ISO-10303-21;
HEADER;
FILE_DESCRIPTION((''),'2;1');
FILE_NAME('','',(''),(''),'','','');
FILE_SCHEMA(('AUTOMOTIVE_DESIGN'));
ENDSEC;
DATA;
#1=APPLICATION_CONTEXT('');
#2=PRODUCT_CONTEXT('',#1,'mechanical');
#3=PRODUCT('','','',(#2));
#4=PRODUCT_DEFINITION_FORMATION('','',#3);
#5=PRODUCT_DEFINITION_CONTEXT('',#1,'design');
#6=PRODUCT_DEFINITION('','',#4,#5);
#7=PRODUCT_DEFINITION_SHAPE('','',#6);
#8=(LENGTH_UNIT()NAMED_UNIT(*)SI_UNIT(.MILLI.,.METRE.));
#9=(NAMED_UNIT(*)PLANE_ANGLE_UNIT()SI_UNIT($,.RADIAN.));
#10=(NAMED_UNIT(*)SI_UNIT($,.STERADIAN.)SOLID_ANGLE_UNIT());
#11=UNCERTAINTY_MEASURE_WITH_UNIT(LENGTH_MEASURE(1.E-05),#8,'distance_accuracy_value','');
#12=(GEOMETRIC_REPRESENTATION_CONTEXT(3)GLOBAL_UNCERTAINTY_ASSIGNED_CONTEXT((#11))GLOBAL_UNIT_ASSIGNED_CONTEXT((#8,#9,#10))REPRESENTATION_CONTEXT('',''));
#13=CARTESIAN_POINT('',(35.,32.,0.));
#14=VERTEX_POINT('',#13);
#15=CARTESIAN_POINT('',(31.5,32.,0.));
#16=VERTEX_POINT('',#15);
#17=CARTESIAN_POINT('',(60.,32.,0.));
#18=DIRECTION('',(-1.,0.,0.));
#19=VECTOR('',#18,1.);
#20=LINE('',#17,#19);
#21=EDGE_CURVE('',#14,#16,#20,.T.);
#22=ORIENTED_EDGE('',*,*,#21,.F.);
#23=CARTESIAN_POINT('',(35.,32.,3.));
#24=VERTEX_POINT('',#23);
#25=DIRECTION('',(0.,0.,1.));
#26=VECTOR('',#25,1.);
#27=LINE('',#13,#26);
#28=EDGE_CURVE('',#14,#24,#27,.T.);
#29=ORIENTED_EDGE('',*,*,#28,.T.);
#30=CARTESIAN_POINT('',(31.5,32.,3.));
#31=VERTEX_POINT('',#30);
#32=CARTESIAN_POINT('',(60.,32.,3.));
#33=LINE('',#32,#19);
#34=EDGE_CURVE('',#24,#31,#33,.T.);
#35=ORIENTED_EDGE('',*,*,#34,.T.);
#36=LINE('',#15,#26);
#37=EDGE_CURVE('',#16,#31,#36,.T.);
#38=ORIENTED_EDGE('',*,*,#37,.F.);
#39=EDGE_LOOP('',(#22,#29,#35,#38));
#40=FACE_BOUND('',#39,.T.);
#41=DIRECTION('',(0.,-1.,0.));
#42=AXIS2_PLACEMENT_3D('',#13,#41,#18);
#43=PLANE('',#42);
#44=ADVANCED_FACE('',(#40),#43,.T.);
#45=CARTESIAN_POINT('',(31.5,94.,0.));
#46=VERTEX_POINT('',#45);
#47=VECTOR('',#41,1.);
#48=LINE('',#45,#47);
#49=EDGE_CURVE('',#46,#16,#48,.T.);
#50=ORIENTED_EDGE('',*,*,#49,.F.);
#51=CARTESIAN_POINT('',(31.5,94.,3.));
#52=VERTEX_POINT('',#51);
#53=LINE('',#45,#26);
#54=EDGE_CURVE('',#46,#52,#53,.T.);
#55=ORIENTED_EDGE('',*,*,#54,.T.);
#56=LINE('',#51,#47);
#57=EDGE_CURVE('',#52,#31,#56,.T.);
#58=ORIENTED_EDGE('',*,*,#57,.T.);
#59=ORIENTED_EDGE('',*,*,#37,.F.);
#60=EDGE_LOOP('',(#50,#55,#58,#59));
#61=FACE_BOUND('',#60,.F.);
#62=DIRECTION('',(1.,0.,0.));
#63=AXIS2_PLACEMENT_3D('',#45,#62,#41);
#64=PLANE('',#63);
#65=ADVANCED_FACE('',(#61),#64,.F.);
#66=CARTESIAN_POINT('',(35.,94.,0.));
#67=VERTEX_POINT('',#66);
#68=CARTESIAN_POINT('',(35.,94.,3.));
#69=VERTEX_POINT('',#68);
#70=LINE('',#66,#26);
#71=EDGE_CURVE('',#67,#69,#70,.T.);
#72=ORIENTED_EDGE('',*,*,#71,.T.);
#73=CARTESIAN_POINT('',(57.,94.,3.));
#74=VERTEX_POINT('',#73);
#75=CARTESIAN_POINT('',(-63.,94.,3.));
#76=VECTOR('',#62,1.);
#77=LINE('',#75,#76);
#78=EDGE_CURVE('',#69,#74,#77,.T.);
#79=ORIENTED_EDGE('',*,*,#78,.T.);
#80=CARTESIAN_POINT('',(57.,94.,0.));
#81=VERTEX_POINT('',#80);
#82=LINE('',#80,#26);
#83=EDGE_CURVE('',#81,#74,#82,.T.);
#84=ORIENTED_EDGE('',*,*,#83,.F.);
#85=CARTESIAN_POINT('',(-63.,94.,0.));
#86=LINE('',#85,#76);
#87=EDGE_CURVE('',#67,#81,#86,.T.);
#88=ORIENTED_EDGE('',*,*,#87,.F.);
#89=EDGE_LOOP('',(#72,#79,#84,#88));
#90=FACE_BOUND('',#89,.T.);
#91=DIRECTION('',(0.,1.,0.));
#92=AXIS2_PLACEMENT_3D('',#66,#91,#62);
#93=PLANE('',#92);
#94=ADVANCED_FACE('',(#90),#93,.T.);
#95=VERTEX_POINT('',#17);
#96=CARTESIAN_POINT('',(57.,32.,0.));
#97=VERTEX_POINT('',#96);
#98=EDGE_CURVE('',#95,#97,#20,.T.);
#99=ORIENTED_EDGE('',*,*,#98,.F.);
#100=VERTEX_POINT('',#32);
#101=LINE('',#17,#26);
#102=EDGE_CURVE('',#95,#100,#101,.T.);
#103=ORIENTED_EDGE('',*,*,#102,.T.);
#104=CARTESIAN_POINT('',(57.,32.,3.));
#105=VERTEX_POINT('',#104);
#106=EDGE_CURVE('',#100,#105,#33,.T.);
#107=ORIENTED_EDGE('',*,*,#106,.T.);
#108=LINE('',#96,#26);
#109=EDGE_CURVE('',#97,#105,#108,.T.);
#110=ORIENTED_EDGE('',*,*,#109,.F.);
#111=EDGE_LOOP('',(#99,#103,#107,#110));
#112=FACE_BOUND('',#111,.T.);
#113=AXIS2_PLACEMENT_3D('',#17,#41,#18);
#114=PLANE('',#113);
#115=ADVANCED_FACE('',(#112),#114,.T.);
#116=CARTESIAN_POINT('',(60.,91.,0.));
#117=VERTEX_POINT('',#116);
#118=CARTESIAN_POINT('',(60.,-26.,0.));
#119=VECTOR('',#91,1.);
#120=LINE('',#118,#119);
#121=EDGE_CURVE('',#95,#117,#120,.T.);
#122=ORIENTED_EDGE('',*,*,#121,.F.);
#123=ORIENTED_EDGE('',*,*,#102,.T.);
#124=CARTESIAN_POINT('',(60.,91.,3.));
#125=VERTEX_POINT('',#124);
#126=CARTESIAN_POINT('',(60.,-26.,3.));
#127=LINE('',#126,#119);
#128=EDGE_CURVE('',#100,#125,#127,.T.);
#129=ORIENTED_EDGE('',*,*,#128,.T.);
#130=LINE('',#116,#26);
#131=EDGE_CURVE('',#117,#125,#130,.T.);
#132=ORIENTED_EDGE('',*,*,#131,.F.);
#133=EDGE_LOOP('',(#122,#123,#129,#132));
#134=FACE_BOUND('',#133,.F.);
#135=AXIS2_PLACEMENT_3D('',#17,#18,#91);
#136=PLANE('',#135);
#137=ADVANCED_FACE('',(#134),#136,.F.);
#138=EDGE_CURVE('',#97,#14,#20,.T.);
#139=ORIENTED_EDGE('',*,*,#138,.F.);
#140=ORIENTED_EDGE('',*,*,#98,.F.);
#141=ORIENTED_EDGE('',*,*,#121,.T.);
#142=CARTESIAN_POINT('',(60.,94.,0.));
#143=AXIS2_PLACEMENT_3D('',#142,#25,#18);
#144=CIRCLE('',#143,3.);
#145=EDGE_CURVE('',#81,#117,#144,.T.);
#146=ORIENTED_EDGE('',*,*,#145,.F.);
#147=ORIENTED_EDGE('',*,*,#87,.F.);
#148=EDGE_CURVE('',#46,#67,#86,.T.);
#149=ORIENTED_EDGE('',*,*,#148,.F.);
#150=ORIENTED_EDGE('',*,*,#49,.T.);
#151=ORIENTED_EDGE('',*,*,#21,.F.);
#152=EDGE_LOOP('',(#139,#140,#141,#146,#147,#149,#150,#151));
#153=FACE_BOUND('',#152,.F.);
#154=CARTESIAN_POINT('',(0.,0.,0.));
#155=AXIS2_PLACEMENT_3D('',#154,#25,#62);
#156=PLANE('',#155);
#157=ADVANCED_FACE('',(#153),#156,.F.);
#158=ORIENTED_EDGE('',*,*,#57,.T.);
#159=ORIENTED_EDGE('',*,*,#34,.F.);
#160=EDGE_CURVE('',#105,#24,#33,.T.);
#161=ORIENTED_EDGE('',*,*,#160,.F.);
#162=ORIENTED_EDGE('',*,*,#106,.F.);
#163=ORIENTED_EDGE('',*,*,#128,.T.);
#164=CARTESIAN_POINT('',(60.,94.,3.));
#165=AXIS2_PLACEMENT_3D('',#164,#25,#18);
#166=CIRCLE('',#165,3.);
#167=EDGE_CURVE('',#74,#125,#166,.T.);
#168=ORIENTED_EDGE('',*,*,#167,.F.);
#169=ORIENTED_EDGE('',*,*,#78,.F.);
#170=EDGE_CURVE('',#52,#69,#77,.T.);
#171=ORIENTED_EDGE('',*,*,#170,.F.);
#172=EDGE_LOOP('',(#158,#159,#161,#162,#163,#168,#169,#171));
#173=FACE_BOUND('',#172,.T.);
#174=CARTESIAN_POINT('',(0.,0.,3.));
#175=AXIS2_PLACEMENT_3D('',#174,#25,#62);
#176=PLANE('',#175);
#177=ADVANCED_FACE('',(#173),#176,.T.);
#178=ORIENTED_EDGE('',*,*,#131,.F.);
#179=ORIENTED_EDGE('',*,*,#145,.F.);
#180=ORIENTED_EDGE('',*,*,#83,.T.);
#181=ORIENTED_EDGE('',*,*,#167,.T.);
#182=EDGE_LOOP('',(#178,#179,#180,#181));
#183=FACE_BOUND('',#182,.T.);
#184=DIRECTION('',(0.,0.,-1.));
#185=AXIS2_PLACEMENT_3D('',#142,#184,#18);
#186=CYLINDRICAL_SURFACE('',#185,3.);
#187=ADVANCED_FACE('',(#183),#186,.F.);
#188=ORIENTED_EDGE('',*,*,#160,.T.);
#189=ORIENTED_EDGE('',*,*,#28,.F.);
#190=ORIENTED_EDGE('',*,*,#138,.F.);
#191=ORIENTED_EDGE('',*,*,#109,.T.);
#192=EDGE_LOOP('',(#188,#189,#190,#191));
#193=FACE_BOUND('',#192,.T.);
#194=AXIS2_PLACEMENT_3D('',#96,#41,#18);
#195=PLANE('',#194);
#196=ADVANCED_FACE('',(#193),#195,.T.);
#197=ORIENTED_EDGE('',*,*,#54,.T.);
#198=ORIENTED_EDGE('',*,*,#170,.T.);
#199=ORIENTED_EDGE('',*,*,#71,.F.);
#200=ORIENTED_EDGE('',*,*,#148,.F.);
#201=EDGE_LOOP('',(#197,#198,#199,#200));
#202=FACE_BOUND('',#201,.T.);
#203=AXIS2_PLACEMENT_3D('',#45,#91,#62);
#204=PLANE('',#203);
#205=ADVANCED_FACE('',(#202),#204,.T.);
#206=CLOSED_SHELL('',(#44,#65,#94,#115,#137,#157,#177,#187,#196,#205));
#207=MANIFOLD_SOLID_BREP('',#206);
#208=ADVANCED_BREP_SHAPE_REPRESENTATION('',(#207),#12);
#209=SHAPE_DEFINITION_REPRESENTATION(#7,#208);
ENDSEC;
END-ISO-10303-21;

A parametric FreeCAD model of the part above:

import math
import FreeCAD as App
import Part
import Sketcher

V = App.Vector

doc = App.newDocument("Part")
params = doc.addObject("Spreadsheet::Sheet", "Params")
for row, (alias, value) in enumerate([
    ("sketch1_radius", "3 mm"),
    ("sketch1_height", "59 mm"),
    ("sketch1_width", "28.5 mm"),
    ("pad1_length", "3 mm"),
], start=1):
    params.set(f"A{row}", alias)
    params.set(f"B{row}", "=" + value)
    params.setAlias(f"B{row}", alias)

body = doc.addObject("PartDesign::Body", "Body")

sketch1 = body.newObject("Sketcher::SketchObject", "Sketch")
sketch1.AttachmentSupport = (doc.getObject("XY_Plane"), [""])
sketch1.MapMode = "FlatFace"
sketch1.addGeometry(Part.LineSegment(V(31.5, 32, 0), V(60, 32, 0)), False)
sketch1.addGeometry(Part.LineSegment(V(60, 32, 0), V(60, 91, 0)), False)
sketch1.addGeometry(Part.ArcOfCircle(Part.Circle(V(60, 94, 0), V(0, 0, 1), 3), math.radians(180), math.radians(270)), False)
sketch1.addGeometry(Part.LineSegment(V(57, 94, 0), V(31.5, 94, 0)), False)
sketch1.addGeometry(Part.LineSegment(V(31.5, 94, 0), V(31.5, 32, 0)), False)
sketch1.addConstraint(Sketcher.Constraint("Coincident", 0, 2, 1, 1))
sketch1.addConstraint(Sketcher.Constraint("Coincident", 1, 2, 2, 2))
sketch1.addConstraint(Sketcher.Constraint("Coincident", 2, 1, 3, 1))
sketch1.addConstraint(Sketcher.Constraint("Coincident", 3, 2, 4, 1))
sketch1.addConstraint(Sketcher.Constraint("Coincident", 4, 2, 0, 1))
sketch1.addConstraint(Sketcher.Constraint("Horizontal", 0))
sketch1.addConstraint(Sketcher.Constraint("Vertical", 1))
sketch1.addConstraint(Sketcher.Constraint("Horizontal", 3))
sketch1.addConstraint(Sketcher.Constraint("Vertical", 4))
sketch1.addConstraint(Sketcher.Constraint("Vertical", 2, 3, 0, 2))
sketch1.addConstraint(Sketcher.Constraint("Radius", 2, 3.0))
sketch1.addConstraint(Sketcher.Constraint("DistanceY", 1, 2, 2, 1, 3.0))
sketch1.addConstraint(Sketcher.Constraint("DistanceY", 1, 1, 1, 2, 59.0))
sketch1.addConstraint(Sketcher.Constraint("DistanceX", 0, 1, 0, 2, 28.5))
sketch1.addConstraint(Sketcher.Constraint("DistanceX", -1, 1, 2, 3, 60.0))
sketch1.addConstraint(Sketcher.Constraint("DistanceY", -1, 1, 2, 3, 94.0))
sketch1.setExpression("Constraints[10]", "Params.sketch1_radius")
sketch1.setExpression("Constraints[12]", "Params.sketch1_height")
sketch1.setExpression("Constraints[13]", "Params.sketch1_width")
pad1 = body.newObject("PartDesign::Pad", "Pad")
pad1.Profile = sketch1
pad1.setExpression("Length", "Params.pad1_length")

doc.recompute()
